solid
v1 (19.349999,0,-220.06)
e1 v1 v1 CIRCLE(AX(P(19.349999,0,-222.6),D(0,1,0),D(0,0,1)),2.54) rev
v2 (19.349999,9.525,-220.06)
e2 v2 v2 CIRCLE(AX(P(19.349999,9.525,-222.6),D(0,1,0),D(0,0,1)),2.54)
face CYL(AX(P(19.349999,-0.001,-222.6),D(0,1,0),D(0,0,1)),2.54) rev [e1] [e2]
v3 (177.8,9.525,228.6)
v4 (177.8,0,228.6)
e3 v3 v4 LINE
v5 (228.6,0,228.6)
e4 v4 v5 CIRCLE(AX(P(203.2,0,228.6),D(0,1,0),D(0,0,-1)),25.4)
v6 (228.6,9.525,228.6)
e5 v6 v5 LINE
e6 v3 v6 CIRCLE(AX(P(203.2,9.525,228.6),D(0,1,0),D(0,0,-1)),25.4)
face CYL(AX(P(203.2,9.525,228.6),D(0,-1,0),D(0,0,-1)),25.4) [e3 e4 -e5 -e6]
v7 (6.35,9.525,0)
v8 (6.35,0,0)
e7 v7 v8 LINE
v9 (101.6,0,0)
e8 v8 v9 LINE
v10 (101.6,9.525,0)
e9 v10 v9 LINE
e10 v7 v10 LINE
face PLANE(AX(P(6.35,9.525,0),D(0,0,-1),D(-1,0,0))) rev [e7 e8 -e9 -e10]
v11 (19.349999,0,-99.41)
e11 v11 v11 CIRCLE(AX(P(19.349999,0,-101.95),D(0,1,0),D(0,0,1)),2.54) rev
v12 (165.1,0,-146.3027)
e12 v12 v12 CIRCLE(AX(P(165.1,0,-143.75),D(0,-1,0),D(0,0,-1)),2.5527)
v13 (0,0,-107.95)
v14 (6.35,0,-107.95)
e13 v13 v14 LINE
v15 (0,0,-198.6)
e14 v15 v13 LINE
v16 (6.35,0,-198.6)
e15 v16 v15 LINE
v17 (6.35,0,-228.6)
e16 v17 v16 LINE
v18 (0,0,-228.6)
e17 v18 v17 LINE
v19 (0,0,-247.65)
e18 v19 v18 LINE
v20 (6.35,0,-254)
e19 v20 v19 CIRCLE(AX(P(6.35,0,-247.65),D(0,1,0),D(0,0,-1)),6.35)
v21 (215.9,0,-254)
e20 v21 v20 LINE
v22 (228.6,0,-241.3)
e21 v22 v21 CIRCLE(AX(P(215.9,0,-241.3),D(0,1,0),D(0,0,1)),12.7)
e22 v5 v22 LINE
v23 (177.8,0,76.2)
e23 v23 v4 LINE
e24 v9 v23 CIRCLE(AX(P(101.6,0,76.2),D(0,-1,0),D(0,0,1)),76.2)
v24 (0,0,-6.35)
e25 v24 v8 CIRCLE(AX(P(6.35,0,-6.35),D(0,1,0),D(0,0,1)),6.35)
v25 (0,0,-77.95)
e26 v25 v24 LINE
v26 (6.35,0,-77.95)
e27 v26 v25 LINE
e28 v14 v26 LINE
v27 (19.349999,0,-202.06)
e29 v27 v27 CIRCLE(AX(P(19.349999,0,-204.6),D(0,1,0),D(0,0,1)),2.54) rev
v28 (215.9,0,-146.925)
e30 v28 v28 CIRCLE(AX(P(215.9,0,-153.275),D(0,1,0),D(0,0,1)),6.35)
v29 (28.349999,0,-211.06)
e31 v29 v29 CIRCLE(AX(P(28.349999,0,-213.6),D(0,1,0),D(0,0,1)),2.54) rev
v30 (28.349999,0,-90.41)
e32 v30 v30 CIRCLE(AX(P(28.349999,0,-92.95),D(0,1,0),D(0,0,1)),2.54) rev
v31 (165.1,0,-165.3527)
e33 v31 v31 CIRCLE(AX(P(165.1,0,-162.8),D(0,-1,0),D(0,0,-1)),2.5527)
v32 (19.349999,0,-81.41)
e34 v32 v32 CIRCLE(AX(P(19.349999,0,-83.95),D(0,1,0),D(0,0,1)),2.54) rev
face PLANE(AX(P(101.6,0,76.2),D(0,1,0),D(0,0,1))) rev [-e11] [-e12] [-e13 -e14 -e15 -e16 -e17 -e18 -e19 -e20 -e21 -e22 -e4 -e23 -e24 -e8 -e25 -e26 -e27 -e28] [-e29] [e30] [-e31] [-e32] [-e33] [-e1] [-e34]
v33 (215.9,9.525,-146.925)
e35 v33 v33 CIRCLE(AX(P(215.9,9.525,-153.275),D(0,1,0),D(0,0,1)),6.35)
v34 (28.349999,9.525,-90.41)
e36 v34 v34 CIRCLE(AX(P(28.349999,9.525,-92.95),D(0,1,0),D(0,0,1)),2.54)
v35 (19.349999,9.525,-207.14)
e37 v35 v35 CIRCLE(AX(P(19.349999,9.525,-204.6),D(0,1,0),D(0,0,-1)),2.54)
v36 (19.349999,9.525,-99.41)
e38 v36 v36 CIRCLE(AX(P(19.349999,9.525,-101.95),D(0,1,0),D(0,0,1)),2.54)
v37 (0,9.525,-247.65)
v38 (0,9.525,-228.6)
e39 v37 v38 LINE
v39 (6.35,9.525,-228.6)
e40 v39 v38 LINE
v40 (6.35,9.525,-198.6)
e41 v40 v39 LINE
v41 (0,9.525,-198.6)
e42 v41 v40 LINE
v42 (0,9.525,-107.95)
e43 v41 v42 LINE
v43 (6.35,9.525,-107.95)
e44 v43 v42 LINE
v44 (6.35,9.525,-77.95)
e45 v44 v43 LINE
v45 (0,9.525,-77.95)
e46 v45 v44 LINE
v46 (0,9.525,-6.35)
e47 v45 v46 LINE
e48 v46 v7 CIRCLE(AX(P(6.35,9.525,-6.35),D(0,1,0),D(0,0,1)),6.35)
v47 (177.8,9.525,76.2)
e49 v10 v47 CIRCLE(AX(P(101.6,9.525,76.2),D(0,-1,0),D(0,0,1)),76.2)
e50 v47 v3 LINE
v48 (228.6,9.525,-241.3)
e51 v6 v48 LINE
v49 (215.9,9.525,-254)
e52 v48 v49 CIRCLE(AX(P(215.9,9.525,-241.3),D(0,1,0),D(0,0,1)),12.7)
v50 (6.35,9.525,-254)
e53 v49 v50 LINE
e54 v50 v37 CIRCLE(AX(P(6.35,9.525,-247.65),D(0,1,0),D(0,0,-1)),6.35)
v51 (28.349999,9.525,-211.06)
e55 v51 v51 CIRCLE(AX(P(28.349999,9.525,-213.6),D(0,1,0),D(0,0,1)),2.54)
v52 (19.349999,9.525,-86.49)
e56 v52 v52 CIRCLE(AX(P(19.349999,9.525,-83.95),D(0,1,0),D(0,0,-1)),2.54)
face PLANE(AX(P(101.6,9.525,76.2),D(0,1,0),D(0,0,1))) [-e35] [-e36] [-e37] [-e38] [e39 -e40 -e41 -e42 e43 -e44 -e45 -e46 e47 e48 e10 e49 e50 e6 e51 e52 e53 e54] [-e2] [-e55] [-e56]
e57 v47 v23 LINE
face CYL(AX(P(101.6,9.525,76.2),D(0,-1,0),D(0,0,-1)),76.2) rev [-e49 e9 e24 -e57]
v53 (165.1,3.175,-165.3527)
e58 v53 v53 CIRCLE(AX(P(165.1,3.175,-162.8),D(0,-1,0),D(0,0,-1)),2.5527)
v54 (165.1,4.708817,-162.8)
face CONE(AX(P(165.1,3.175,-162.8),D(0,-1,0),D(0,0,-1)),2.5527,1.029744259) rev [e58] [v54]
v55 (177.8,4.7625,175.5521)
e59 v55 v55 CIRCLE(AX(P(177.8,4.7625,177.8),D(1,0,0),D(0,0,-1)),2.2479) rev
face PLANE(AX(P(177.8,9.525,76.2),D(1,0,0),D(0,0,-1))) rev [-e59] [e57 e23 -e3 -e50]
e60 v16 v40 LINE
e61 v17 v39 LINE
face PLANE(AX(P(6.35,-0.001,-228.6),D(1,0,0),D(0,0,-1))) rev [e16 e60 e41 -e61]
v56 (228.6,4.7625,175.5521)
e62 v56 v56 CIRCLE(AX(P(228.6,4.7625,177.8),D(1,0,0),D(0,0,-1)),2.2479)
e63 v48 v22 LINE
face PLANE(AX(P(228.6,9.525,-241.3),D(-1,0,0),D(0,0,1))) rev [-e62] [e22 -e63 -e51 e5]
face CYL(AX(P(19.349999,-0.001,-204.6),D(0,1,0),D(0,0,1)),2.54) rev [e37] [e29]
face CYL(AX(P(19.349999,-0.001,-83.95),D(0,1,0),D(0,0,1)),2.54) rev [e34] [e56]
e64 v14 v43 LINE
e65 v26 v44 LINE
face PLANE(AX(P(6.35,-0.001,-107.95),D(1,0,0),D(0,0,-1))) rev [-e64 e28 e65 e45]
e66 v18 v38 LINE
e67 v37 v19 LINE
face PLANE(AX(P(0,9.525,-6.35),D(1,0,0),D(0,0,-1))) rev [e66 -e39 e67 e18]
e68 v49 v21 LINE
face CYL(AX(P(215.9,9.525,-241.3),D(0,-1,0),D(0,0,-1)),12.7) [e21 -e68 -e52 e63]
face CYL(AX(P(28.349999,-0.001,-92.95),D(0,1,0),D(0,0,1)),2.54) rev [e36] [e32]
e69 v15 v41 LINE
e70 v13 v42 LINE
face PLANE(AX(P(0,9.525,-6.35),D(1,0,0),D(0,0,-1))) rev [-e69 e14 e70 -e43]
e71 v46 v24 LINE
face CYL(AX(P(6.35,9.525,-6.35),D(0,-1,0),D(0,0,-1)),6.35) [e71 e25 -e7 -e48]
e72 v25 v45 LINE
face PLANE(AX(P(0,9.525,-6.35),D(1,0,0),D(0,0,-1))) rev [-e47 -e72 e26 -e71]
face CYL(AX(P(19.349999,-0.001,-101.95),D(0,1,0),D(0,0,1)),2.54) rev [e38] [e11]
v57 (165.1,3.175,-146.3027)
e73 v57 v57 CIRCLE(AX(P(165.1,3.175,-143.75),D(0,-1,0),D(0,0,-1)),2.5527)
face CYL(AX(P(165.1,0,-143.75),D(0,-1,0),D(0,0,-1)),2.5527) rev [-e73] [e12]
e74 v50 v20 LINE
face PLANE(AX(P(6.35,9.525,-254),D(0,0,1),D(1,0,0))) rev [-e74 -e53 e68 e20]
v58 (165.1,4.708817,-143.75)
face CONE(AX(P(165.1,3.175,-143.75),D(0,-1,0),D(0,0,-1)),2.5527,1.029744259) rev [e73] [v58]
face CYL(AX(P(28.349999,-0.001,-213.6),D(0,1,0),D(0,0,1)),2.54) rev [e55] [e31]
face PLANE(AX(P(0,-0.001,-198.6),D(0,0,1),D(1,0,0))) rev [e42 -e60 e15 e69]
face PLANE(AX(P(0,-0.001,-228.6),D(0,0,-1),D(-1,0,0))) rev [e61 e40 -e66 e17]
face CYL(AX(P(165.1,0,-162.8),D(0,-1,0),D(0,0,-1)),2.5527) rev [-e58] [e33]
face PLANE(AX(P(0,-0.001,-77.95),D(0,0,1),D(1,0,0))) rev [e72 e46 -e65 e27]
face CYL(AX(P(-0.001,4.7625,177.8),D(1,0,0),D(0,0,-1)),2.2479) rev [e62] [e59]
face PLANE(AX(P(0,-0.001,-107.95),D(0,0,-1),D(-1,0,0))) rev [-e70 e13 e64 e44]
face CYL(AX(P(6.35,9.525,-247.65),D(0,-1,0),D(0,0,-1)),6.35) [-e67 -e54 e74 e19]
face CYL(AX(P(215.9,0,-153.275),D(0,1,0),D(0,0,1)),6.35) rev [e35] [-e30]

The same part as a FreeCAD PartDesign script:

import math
import FreeCAD as App
import Part
import Sketcher

V = App.Vector
Q = App.Units.Quantity

doc = App.newDocument("Part")
body = doc.addObject("PartDesign::Body", "Body")

# Sketch on XZ plane
sketch1 = body.newObject("Sketcher::SketchObject", "Sketch")
sketch1.AttachmentSupport = (doc.getObject("XZ_Plane"), [""])
sketch1.MapMode = "FlatFace"
sketch1.addGeometry([
    Part.LineSegment(V(6, 0, 0), V(102, 0, 0)),  # 0
    Part.ArcOfCircle(Part.Circle(V(102, 76, 0), V(0, 0, 1), 76), math.radians(-90), math.radians(0)),  # 1
    Part.LineSegment(V(178, 76, 0), V(178, 229, 0)),  # 2
    Part.ArcOfCircle(Part.Circle(V(203, 229, 0), V(0, 0, 1), 25), math.radians(0), math.radians(180)),  # 3
    Part.LineSegment(V(229, 229, 0), V(229, -241, 0)),  # 4
    Part.ArcOfCircle(Part.Circle(V(216, -241, 0), V(0, 0, 1), 13), math.radians(-90), math.radians(0)),  # 5
    Part.LineSegment(V(216, -254, 0), V(6, -254, 0)),  # 6
    Part.ArcOfCircle(Part.Circle(V(6, -248, 0), V(0, 0, 1), 6), math.radians(180), math.radians(270)),  # 7
    Part.LineSegment(V(0, -248, 0), V(0, -6, 0)),  # 8
    Part.ArcOfCircle(Part.Circle(V(6, -6, 0), V(0, 0, 1), 6), math.radians(90), math.radians(180)),  # 9
], False)
sketch1.addConstraint([
    Sketcher.Constraint("Tangent", 0, 2, 1, 1),
    Sketcher.Constraint("Tangent", 1, 2, 2, 1),
    Sketcher.Constraint("Tangent", 2, 2, 3, 2),
    Sketcher.Constraint("Tangent", 3, 1, 4, 1),
    Sketcher.Constraint("Tangent", 4, 2, 5, 2),
    Sketcher.Constraint("Tangent", 5, 1, 6, 1),
    Sketcher.Constraint("Tangent", 6, 2, 7, 2),
    Sketcher.Constraint("Tangent", 7, 1, 8, 1),
    Sketcher.Constraint("Tangent", 8, 2, 9, 2),
    Sketcher.Constraint("Tangent", 9, 1, 0, 1),
    Sketcher.Constraint("Horizontal", 0),
    Sketcher.Constraint("Vertical", 2),
    Sketcher.Constraint("Vertical", 4),
    Sketcher.Constraint("Horizontal", 6),
    Sketcher.Constraint("Vertical", 8),
    Sketcher.Constraint("Equal", 7, 9),
    Sketcher.Constraint("PointOnObject", 0, 2, -1),
    Sketcher.Constraint("PointOnObject", 7, 1, -2),
    Sketcher.Constraint("Radius", 1, Q("3 in")),
    Sketcher.Constraint("Radius", 3, Q("1 in")),
    Sketcher.Constraint("Radius", 5, Q("0.5 in")),
    Sketcher.Constraint("DistanceY", 2, 1, 2, 2, Q("6 in")),
    Sketcher.Constraint("Radius", 7, Q("0.25 in")),
    Sketcher.Constraint("DistanceY", 4, 2, 4, 1, Q("18.5 in")),
    Sketcher.Constraint("DistanceX", -1, 1, 1, 3, Q("4 in")),
])
pad1 = body.newObject("PartDesign::Pad", "Pad")
pad1.Profile = sketch1
pad1.Length = Q("0.375 in")
pad1.Reversed = True

# Sketch on XZ plane
sketch2 = body.newObject("Sketcher::SketchObject", "Sketch001")
sketch2.AttachmentSupport = (doc.getObject("XZ_Plane"), [""])
sketch2.MapMode = "FlatFace"
sketch2.AttachmentOffset = App.Placement(V(0, 0, -0.375 * 25.4), App.Rotation())
sketch2.addGeometry(Part.Circle(V(28.3, -213.6, 0), V(0, 0, 1), 2.5), False)
sketch2.addConstraint([
    Sketcher.Constraint("Diameter", 0, Q("0.2 in")),
    Sketcher.Constraint("DistanceX", -1, 1, 0, 3, 28.349999),
    Sketcher.Constraint("DistanceY", 0, 3, -1, 1, 213.6),
])
pocket1 = body.newObject("PartDesign::Pocket", "Pocket")
pocket1.Profile = sketch2
pocket1.Type = "UpToFirst"
pocket1.Reversed = True

# Sketch on XZ plane
sketch3 = body.newObject("Sketcher::SketchObject", "Sketch002")
sketch3.AttachmentSupport = (doc.getObject("XZ_Plane"), [""])
sketch3.MapMode = "FlatFace"
sketch3.AttachmentOffset = App.Placement(V(0, 0, -0.375 * 25.4), App.Rotation())
sketch3.addGeometry(Part.Circle(V(19.3, -222.6, 0), V(0, 0, 1), 2.5), False)
sketch3.addConstraint([
    Sketcher.Constraint("Diameter", 0, Q("0.2 in")),
    Sketcher.Constraint("DistanceX", -1, 1, 0, 3, 19.349999),
    Sketcher.Constraint("DistanceY", 0, 3, -1, 1, 222.6),
])
pocket2 = body.newObject("PartDesign::Pocket", "Pocket001")
pocket2.Profile = sketch3
pocket2.Type = "UpToFirst"
pocket2.Reversed = True

# Sketch on XZ plane
sketch4 = body.newObject("Sketcher::SketchObject", "Sketch003")
sketch4.AttachmentSupport = (doc.getObject("XZ_Plane"), [""])
sketch4.MapMode = "FlatFace"
sketch4.AttachmentOffset = App.Placement(V(0, 0, -0.375 * 25.4), App.Rotation())
sketch4.addGeometry(Part.Circle(V(19.3, -204.6, 0), V(0, 0, 1), 2.5), False)
sketch4.addConstraint([
    Sketcher.Constraint("Diameter", 0, Q("0.2 in")),
    Sketcher.Constraint("DistanceX", -1, 1, 0, 3, 19.349999),
    Sketcher.Constraint("DistanceY", 0, 3, -1, 1, 204.6),
])
pocket3 = body.newObject("PartDesign::Pocket", "Pocket002")
pocket3.Profile = sketch4
pocket3.Type = "UpToFirst"
pocket3.Reversed = True

# Sketch on XZ plane
sketch5 = body.newObject("Sketcher::SketchObject", "Sketch004")
sketch5.AttachmentSupport = (doc.getObject("XZ_Plane"), [""])
sketch5.MapMode = "FlatFace"
sketch5.AttachmentOffset = App.Placement(V(0, 0, -0.375 * 25.4), App.Rotation())
sketch5.addGeometry(Part.Circle(V(28.3, -93, 0), V(0, 0, 1), 2.5), False)
sketch5.addConstraint([
    Sketcher.Constraint("Diameter", 0, Q("0.2 in")),
    Sketcher.Constraint("DistanceX", -1, 1, 0, 3, 28.349999),
    Sketcher.Constraint("DistanceY", 0, 3, -1, 1, 92.95),
])
pocket4 = body.newObject("PartDesign::Pocket", "Pocket003")
pocket4.Profile = sketch5
pocket4.Type = "UpToFirst"
pocket4.Reversed = True

# Sketch on XZ plane
sketch6 = body.newObject("Sketcher::SketchObject", "Sketch005")
sketch6.AttachmentSupport = (doc.getObject("XZ_Plane"), [""])
sketch6.MapMode = "FlatFace"
sketch6.AttachmentOffset = App.Placement(V(0, 0, -0.375 * 25.4), App.Rotation())
sketch6.addGeometry(Part.Circle(V(19.3, -101.9, 0), V(0, 0, 1), 2.5), False)
sketch6.addConstraint([
    Sketcher.Constraint("Diameter", 0, Q("0.2 in")),
    Sketcher.Constraint("DistanceX", -1, 1, 0, 3, 19.349999),
    Sketcher.Constraint("DistanceY", 0, 3, -1, 1, 101.95),
])
pocket5 = body.newObject("PartDesign::Pocket", "Pocket004")
pocket5.Profile = sketch6
pocket5.Type = "UpToFirst"
pocket5.Reversed = True

# Sketch on XZ plane
sketch7 = body.newObject("Sketcher::SketchObject", "Sketch006")
sketch7.AttachmentSupport = (doc.getObject("XZ_Plane"), [""])
sketch7.MapMode = "FlatFace"
sketch7.AttachmentOffset = App.Placement(V(0, 0, -0.375 * 25.4), App.Rotation())
sketch7.addGeometry(Part.Circle(V(19.3, -84, 0), V(0, 0, 1), 2.5), False)
sketch7.addConstraint([
    Sketcher.Constraint("Diameter", 0, Q("0.2 in")),
    Sketcher.Constraint("DistanceX", -1, 1, 0, 3, 19.349999),
    Sketcher.Constraint("DistanceY", 0, 3, -1, 1, 83.95),
])
pocket6 = body.newObject("PartDesign::Pocket", "Pocket005")
pocket6.Profile = sketch7
pocket6.Type = "UpToFirst"
pocket6.Reversed = True

# Sketch on XZ plane
sketch8 = body.newObject("Sketcher::SketchObject", "Sketch007")
sketch8.AttachmentSupport = (doc.getObject("XZ_Plane"), [""])
sketch8.MapMode = "FlatFace"
sketch8.AttachmentOffset = App.Placement(V(0, 0, -0.375 * 25.4), App.Rotation())
sketch8.addGeometry([
    Part.LineSegment(V(0, -229, 0), V(0, -199, 0)),
    Part.LineSegment(V(0, -199, 0), V(6, -199, 0)),
    Part.LineSegment(V(6, -199, 0), V(6, -229, 0)),
    Part.LineSegment(V(6, -229, 0), V(0, -229, 0)),
], False)
sketch8.addConstraint([
    Sketcher.Constraint("Coincident", 0, 2, 1, 1),
    Sketcher.Constraint("Coincident", 1, 2, 2, 1),
    Sketcher.Constraint("Coincident", 2, 2, 3, 1),
    Sketcher.Constraint("Coincident", 3, 2, 0, 1),
    Sketcher.Constraint("Vertical", 0),
    Sketcher.Constraint("Horizontal", 1),
    Sketcher.Constraint("Vertical", 2),
    Sketcher.Constraint("Horizontal", 3),
    Sketcher.Constraint("PointOnObject", 0, 2, -2),
    Sketcher.Constraint("DistanceY", 2, 2, -1, 1, Q("9 in")),
    Sketcher.Constraint("DistanceX", 1, 1, 1, 2, Q("0.25 in")),
    Sketcher.Constraint("DistanceY", 0, 1, 0, 2, 30.0),
])
pocket7 = body.newObject("PartDesign::Pocket", "Pocket006")
pocket7.Profile = sketch8
pocket7.Type = "UpToFirst"
pocket7.Reversed = True

# Sketch on XZ plane
sketch9 = body.newObject("Sketcher::SketchObject", "Sketch008")
sketch9.AttachmentSupport = (doc.getObject("XZ_Plane"), [""])
sketch9.MapMode = "FlatFace"
sketch9.AttachmentOffset = App.Placement(V(0, 0, -0.375 * 25.4), App.Rotation())
sketch9.addGeometry([
    Part.LineSegment(V(0, -108, 0), V(0, -78, 0)),
    Part.LineSegment(V(0, -78, 0), V(6, -78, 0)),
    Part.LineSegment(V(6, -78, 0), V(6, -108, 0)),
    Part.LineSegment(V(6, -108, 0), V(0, -108, 0)),
], False)
sketch9.addConstraint([
    Sketcher.Constraint("Coincident", 0, 2, 1, 1),
    Sketcher.Constraint("Coincident", 1, 2, 2, 1),
    Sketcher.Constraint("Coincident", 2, 2, 3, 1),
    Sketcher.Constraint("Coincident", 3, 2, 0, 1),
    Sketcher.Constraint("Vertical", 0),
    Sketcher.Constraint("Horizontal", 1),
    Sketcher.Constraint("Vertical", 2),
    Sketcher.Constraint("Horizontal", 3),
    Sketcher.Constraint("PointOnObject", 0, 2, -2),
    Sketcher.Constraint("DistanceX", 1, 1, 1, 2, Q("0.25 in")),
    Sketcher.Constraint("DistanceY", 2, 2, -1, 1, Q("4.25 in")),
    Sketcher.Constraint("DistanceY", 0, 1, 0, 2, 30.0),
])
pocket8 = body.newObject("PartDesign::Pocket", "Pocket007")
pocket8.Profile = sketch9
pocket8.Type = "UpToFirst"
pocket8.Reversed = True

# Sketch on YZ plane
sketch10 = body.newObject("Sketcher::SketchObject", "Sketch009")
sketch10.AttachmentSupport = (doc.getObject("YZ_Plane"), [""])
sketch10.MapMode = "FlatFace"
sketch10.AttachmentOffset = App.Placement(V(0, 0, 9 * 25.4), App.Rotation())
sketch10.addGeometry(Part.Circle(V(4.8, 177.8, 0), V(0, 0, 1), 2.2), False)
sketch10.addConstraint([
    Sketcher.Constraint("Diameter", 0, Q("0.177 in")),
    Sketcher.Constraint("DistanceY", -1, 1, 0, 3, Q("7 in")),
    Sketcher.Constraint("DistanceX", -1, 1, 0, 3, Q("0.1875 in")),
])
pocket9 = body.newObject("PartDesign::Pocket", "Pocket008")
pocket9.Profile = sketch10
pocket9.Type = "UpToFirst"

# Sketch on XZ plane
sketch11 = body.newObject("Sketcher::SketchObject", "Sketch010")
sketch11.AttachmentSupport = (doc.getObject("XZ_Plane"), [""])
sketch11.MapMode = "FlatFace"
sketch11.addGeometry([
    Part.Circle(V(165.1, -143.8, 0), V(0, 0, 1), 2.6),
    Part.Circle(V(165.1, -162.8, 0), V(0, 0, 1), 2.6),
], False)
sketch11.addConstraint([
    Sketcher.Constraint("Equal", 0, 1),
    Sketcher.Constraint("Vertical", 0, 3, 1, 3),
    Sketcher.Constraint("Diameter", 0, Q("0.201 in")),
    Sketcher.Constraint("DistanceX", -1, 1, 0, 3, Q("6.5 in")),
    Sketcher.Constraint("DistanceY", 1, 3, 0, 3, Q("0.75 in")),
    Sketcher.Constraint("DistanceY", 0, 3, -1, 1, 143.75),
])
doc.recompute()
hole = body.newObject("PartDesign::Hole", "Hole")
hole.Profile = sketch11
hole.ThreadType = "None"
hole.Diameter = Q("0.201 in")
hole.DepthType = "Dimension"
hole.Depth = Q("0.125 in")
hole.DrillPoint = "Angled"
hole.DrillPointAngle = 118

# Sketch on XZ plane
sketch12 = body.newObject("Sketcher::SketchObject", "Sketch011")
sketch12.AttachmentSupport = (doc.getObject("XZ_Plane"), [""])
sketch12.MapMode = "FlatFace"
sketch12.AttachmentOffset = App.Placement(V(0, 0, -0.375 * 25.4), App.Rotation())
sketch12.addGeometry(Part.Circle(V(216, -153, 0), V(0, 0, 1), 6), False)
sketch12.addConstraint([
    Sketcher.Constraint("Diameter", 0, Q("0.5 in")),
    Sketcher.Constraint("DistanceX", -1, 1, 0, 3, Q("8.5 in")),
    Sketcher.Constraint("DistanceY", 0, 3, -1, 1, 153.275),
])
pocket10 = body.newObject("PartDesign::Pocket", "Pocket009")
pocket10.Profile = sketch12
pocket10.Type = "ThroughAll"
pocket10.Reversed = True

doc.recompute()
